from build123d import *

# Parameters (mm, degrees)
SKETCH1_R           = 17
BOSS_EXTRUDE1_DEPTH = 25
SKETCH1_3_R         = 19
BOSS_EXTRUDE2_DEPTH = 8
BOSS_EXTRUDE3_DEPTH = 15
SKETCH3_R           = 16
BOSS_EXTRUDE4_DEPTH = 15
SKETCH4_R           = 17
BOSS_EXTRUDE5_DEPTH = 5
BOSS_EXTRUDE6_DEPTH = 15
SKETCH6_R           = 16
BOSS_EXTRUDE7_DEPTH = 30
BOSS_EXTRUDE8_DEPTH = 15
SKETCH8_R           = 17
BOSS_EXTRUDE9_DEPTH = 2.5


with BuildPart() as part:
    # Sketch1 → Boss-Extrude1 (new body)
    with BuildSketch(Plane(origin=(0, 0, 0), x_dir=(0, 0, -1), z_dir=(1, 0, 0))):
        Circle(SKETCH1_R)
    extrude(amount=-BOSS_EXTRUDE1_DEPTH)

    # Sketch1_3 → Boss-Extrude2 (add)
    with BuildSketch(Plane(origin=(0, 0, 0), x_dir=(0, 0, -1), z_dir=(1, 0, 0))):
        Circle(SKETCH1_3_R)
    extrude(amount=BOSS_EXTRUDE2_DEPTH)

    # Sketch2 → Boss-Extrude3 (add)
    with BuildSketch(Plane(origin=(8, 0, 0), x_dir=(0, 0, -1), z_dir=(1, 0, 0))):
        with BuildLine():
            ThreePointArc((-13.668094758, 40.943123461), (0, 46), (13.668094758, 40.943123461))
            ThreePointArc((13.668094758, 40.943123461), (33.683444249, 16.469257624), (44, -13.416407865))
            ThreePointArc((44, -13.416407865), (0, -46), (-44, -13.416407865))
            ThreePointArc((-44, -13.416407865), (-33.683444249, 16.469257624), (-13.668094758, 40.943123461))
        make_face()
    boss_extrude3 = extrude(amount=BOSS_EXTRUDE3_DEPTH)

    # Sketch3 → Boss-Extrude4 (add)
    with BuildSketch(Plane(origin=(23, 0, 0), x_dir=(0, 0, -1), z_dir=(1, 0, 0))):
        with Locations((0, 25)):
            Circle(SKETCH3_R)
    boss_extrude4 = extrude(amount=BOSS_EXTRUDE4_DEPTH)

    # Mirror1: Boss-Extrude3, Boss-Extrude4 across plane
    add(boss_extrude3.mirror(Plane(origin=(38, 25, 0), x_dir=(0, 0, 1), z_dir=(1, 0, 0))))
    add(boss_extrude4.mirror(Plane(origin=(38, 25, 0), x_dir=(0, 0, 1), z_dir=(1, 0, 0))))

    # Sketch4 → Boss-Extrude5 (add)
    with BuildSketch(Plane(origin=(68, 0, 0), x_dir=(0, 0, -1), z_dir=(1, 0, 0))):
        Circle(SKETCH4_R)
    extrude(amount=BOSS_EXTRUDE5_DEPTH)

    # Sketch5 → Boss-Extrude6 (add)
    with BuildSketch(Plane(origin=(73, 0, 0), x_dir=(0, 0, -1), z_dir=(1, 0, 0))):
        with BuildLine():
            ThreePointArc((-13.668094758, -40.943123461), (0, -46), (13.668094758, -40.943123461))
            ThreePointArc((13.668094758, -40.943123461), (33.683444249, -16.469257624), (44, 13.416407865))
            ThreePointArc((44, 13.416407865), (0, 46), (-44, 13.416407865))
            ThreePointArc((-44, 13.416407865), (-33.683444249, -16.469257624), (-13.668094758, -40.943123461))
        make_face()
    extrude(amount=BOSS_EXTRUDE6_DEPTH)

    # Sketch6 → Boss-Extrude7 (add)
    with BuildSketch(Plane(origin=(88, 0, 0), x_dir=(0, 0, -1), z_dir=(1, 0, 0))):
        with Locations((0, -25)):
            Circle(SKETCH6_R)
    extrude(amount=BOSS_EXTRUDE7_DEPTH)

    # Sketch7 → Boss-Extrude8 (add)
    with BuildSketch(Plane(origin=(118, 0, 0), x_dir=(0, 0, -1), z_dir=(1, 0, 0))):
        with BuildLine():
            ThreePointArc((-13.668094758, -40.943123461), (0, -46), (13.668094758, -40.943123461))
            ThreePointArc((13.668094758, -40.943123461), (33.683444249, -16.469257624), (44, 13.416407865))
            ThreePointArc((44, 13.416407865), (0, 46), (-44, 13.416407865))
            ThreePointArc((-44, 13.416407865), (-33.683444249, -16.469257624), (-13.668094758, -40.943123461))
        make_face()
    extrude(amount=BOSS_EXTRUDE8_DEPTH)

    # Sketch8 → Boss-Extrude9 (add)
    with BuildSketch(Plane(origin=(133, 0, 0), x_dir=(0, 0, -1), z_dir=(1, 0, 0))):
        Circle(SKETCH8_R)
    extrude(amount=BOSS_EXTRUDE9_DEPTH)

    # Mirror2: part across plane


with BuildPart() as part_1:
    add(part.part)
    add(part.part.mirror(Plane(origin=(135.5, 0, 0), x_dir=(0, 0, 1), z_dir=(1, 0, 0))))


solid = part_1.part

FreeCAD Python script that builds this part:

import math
import FreeCAD as App
import Part
import Sketcher
from FreeCAD import Vector

doc = App.newDocument("Part")
body = doc.addObject("PartDesign::Body", "Body")

# Sketch on YZ plane
sketch1 = body.newObject("Sketcher::SketchObject", "Sketch")
sketch1.AttachmentSupport = (doc.getObject("YZ_Plane"), [""])
sketch1.MapMode = "FlatFace"
sketch1.addGeometry(Part.Circle(Vector(0, 0, 0), Vector(0, 0, 1), 17), False)
sketch1.addConstraint([
    Sketcher.Constraint("Coincident", 0, 3, -1, 1),
    Sketcher.Constraint("Diameter", 0, 34.0),
])
pad1 = body.newObject("PartDesign::Pad", "Pad")
pad1.Profile = sketch1
pad1.Length = 25
pad1.Reversed = True

# Sketch on YZ plane
sketch2 = body.newObject("Sketcher::SketchObject", "Sketch001")
sketch2.AttachmentSupport = (doc.getObject("YZ_Plane"), [""])
sketch2.MapMode = "FlatFace"
sketch2.addGeometry(Part.Circle(Vector(0, 0, 0), Vector(0, 0, 1), 19), False)
sketch2.addConstraint([
    Sketcher.Constraint("Coincident", 0, 3, -1, 1),
    Sketcher.Constraint("Diameter", 0, 38.0),
])
pad2 = body.newObject("PartDesign::Pad", "Pad001")
pad2.Profile = sketch2
pad2.Length = 8

# Sketch on YZ plane
sketch3 = body.newObject("Sketcher::SketchObject", "Sketch002")
sketch3.AttachmentSupport = (doc.getObject("YZ_Plane"), [""])
sketch3.MapMode = "FlatFace"
sketch3.AttachmentOffset = App.Placement(Vector(0, 0, 8), App.Rotation())
sketch3.addGeometry([
    Part.ArcOfCircle(Part.Circle(Vector(25, 0, 0), Vector(0, 0, 1), 21), math.radians(-40.606599), math.radians(40.606599)),
    Part.ArcOfCircle(Part.Circle(Vector(-27.384549, -44.909454, 0), Vector(0, 0, 1), 90), math.radians(40.606599), math.radians(81.071514)),
    Part.ArcOfCircle(Part.Circle(Vector(0, 0, 0), Vector(0, 0, 1), 46), math.radians(106.957426), math.radians(253.042574)),
    Part.ArcOfCircle(Part.Circle(Vector(-27.384549, 44.909454, 0), Vector(0, 0, 1), 90), math.radians(-81.071514), math.radians(-40.606599)),
], False)
sketch3.addConstraint([
    Sketcher.Constraint("Tangent", 0, 2, 1, 1),
    Sketcher.Constraint("Coincident", 1, 2, 2, 1),
    Sketcher.Constraint("Coincident", 2, 2, 3, 1),
    Sketcher.Constraint("Tangent", 3, 2, 0, 1),
    Sketcher.Constraint("Coincident", 2, 3, -1, 1),
    Sketcher.Constraint("Equal", 1, 3),
    Sketcher.Constraint("Symmetric", 1, 3, 3, 3, -1),
    Sketcher.Constraint("Radius", 0, 21.0),
    Sketcher.Constraint("Radius", 1, 90.0),
    Sketcher.Constraint("Radius", 2, 46.0),
    Sketcher.Constraint("DistanceX", -1, 1, 0, 3, 25.0),
    Sketcher.Constraint("DistanceY", -1, 1, 1, 2, 44.0),
])
pad3 = body.newObject("PartDesign::Pad", "Pad002")
pad3.Profile = sketch3
pad3.Length = 15

# Sketch on YZ plane
sketch4 = body.newObject("Sketcher::SketchObject", "Sketch003")
sketch4.AttachmentSupport = (doc.getObject("YZ_Plane"), [""])
sketch4.MapMode = "FlatFace"
sketch4.AttachmentOffset = App.Placement(Vector(0, 0, 23), App.Rotation())
sketch4.addGeometry(Part.Circle(Vector(25, 0, 0), Vector(0, 0, 1), 16), False)
sketch4.addConstraint([
    Sketcher.Constraint("PointOnObject", 0, 3, -1),
    Sketcher.Constraint("Diameter", 0, 32.0),
    Sketcher.Constraint("DistanceX", -1, 1, 0, 3, 25.0),
])
pad4 = body.newObject("PartDesign::Pad", "Pad003")
pad4.Profile = sketch4
pad4.Length = 15
doc.recompute()

datumplane = body.newObject("PartDesign::Plane", "DatumPlane")
datumplane.AttachmentSupport = (doc.getObject("YZ_Plane"), [""])
datumplane.MapMode = "FlatFace"
datumplane.AttachmentOffset = App.Placement(Vector(0, 0, 38), App.Rotation())
mirrored = body.newObject("PartDesign::Mirrored", "Mirrored")
mirrored.Originals = [pad3, pad4]
mirrored.MirrorPlane = (datumplane, [""])
body.Tip = mirrored

# Sketch on YZ plane
sketch5 = body.newObject("Sketcher::SketchObject", "Sketch004")
sketch5.AttachmentSupport = (doc.getObject("YZ_Plane"), [""])
sketch5.MapMode = "FlatFace"
sketch5.AttachmentOffset = App.Placement(Vector(0, 0, 68), App.Rotation())
sketch5.addGeometry(Part.Circle(Vector(0, 0, 0), Vector(0, 0, 1), 17), False)
sketch5.addConstraint([
    Sketcher.Constraint("Coincident", 0, 3, -1, 1),
    Sketcher.Constraint("Diameter", 0, 34.0),
])
pad5 = body.newObject("PartDesign::Pad", "Pad004")
pad5.Profile = sketch5
pad5.Length = 5

# Sketch on YZ plane
sketch6 = body.newObject("Sketcher::SketchObject", "Sketch005")
sketch6.AttachmentSupport = (doc.getObject("YZ_Plane"), [""])
sketch6.MapMode = "FlatFace"
sketch6.AttachmentOffset = App.Placement(Vector(0, 0, 73), App.Rotation())
sketch6.addGeometry([
    Part.ArcOfCircle(Part.Circle(Vector(-25, 0, 0), Vector(0, 0, 1), 21), math.radians(139.393401), math.radians(220.606599)),
    Part.ArcOfCircle(Part.Circle(Vector(27.384549, 44.909454, 0), Vector(0, 0, 1), 90), math.radians(-139.393401), math.radians(-98.928486)),
    Part.ArcOfCircle(Part.Circle(Vector(0, 0, 0), Vector(0, 0, 1), 46), math.radians(-73.042574), math.radians(73.042574)),
    Part.ArcOfCircle(Part.Circle(Vector(27.384549, -44.909454, 0), Vector(0, 0, 1), 90), math.radians(98.928486), math.radians(139.393401)),
], False)
sketch6.addConstraint([
    Sketcher.Constraint("Tangent", 0, 2, 1, 1),
    Sketcher.Constraint("Coincident", 1, 2, 2, 1),
    Sketcher.Constraint("Coincident", 2, 2, 3, 1),
    Sketcher.Constraint("Tangent", 3, 2, 0, 1),
    Sketcher.Constraint("Coincident", 2, 3, -1, 1),
    Sketcher.Constraint("Equal", 1, 3),
    Sketcher.Constraint("Symmetric", 1, 3, 3, 3, -1),
    Sketcher.Constraint("Radius", 0, 21.0),
    Sketcher.Constraint("Radius", 1, 90.0),
    Sketcher.Constraint("Radius", 2, 46.0),
    Sketcher.Constraint("DistanceX", 0, 3, -1, 1, 25.0),
    Sketcher.Constraint("DistanceY", 1, 2, -1, 1, 44.0),
])
pad6 = body.newObject("PartDesign::Pad", "Pad005")
pad6.Profile = sketch6
pad6.Length = 15

# Sketch on YZ plane
sketch7 = body.newObject("Sketcher::SketchObject", "Sketch006")
sketch7.AttachmentSupport = (doc.getObject("YZ_Plane"), [""])
sketch7.MapMode = "FlatFace"
sketch7.AttachmentOffset = App.Placement(Vector(0, 0, 88), App.Rotation())
sketch7.addGeometry(Part.Circle(Vector(-25, 0, 0), Vector(0, 0, 1), 16), False)
sketch7.addConstraint([
    Sketcher.Constraint("PointOnObject", 0, 3, -1),
    Sketcher.Constraint("Diameter", 0, 32.0),
    Sketcher.Constraint("DistanceX", 0, 3, -1, 1, 25.0),
])
pad7 = body.newObject("PartDesign::Pad", "Pad006")
pad7.Profile = sketch7
pad7.Length = 30

# Sketch on YZ plane
sketch8 = body.newObject("Sketcher::SketchObject", "Sketch007")
sketch8.AttachmentSupport = (doc.getObject("YZ_Plane"), [""])
sketch8.MapMode = "FlatFace"
sketch8.AttachmentOffset = App.Placement(Vector(0, 0, 118), App.Rotation())
sketch8.addGeometry([
    Part.ArcOfCircle(Part.Circle(Vector(-25, 0, 0), Vector(0, 0, 1), 21), math.radians(139.393401), math.radians(220.606599)),
    Part.ArcOfCircle(Part.Circle(Vector(27.384549, 44.909454, 0), Vector(0, 0, 1), 90), math.radians(-139.393401), math.radians(-98.928486)),
    Part.ArcOfCircle(Part.Circle(Vector(0, 0, 0), Vector(0, 0, 1), 46), math.radians(-73.042574), math.radians(73.042574)),
    Part.ArcOfCircle(Part.Circle(Vector(27.384549, -44.909454, 0), Vector(0, 0, 1), 90), math.radians(98.928486), math.radians(139.393401)),
], False)
sketch8.addConstraint([
    Sketcher.Constraint("Tangent", 0, 2, 1, 1),
    Sketcher.Constraint("Coincident", 1, 2, 2, 1),
    Sketcher.Constraint("Coincident", 2, 2, 3, 1),
    Sketcher.Constraint("Tangent", 3, 2, 0, 1),
    Sketcher.Constraint("Coincident", 2, 3, -1, 1),
    Sketcher.Constraint("Equal", 1, 3),
    Sketcher.Constraint("Symmetric", 1, 3, 3, 3, -1),
    Sketcher.Constraint("Radius", 0, 21.0),
    Sketcher.Constraint("Radius", 1, 90.0),
    Sketcher.Constraint("Radius", 2, 46.0),
    Sketcher.Constraint("DistanceX", 0, 3, -1, 1, 25.0),
    Sketcher.Constraint("DistanceY", 1, 2, -1, 1, 44.0),
])
pad8 = body.newObject("PartDesign::Pad", "Pad007")
pad8.Profile = sketch8
pad8.Length = 15

# Sketch on YZ plane
sketch9 = body.newObject("Sketcher::SketchObject", "Sketch008")
sketch9.AttachmentSupport = (doc.getObject("YZ_Plane"), [""])
sketch9.MapMode = "FlatFace"
sketch9.AttachmentOffset = App.Placement(Vector(0, 0, 133), App.Rotation())
sketch9.addGeometry(Part.Circle(Vector(0, 0, 0), Vector(0, 0, 1), 17), False)
sketch9.addConstraint([
    Sketcher.Constraint("Coincident", 0, 3, -1, 1),
    Sketcher.Constraint("Diameter", 0, 34.0),
])
pad9 = body.newObject("PartDesign::Pad", "Pad008")
pad9.Profile = sketch9
pad9.Length = 2.5
body2 = doc.addObject("PartDesign::Body", "Body001")
doc.recompute()

body2.BaseFeature = body
doc.recompute()

mirroring = doc.addObject("Part::Mirroring", "Mirroring")
mirroring.Source = body
mirroring.Base = Vector(135.5, 0, 0)
mirroring.Normal = Vector(1, 0, 0)
body3 = doc.addObject("PartDesign::Body", "Body002")
body3.BaseFeature = mirroring
boolean = body2.newObject("PartDesign::Boolean", "Boolean")
boolean.Type = "Fuse"
boolean.addObjects([body3])
doc.recompute()
mirroring.Visibility = False

doc.recompute()
